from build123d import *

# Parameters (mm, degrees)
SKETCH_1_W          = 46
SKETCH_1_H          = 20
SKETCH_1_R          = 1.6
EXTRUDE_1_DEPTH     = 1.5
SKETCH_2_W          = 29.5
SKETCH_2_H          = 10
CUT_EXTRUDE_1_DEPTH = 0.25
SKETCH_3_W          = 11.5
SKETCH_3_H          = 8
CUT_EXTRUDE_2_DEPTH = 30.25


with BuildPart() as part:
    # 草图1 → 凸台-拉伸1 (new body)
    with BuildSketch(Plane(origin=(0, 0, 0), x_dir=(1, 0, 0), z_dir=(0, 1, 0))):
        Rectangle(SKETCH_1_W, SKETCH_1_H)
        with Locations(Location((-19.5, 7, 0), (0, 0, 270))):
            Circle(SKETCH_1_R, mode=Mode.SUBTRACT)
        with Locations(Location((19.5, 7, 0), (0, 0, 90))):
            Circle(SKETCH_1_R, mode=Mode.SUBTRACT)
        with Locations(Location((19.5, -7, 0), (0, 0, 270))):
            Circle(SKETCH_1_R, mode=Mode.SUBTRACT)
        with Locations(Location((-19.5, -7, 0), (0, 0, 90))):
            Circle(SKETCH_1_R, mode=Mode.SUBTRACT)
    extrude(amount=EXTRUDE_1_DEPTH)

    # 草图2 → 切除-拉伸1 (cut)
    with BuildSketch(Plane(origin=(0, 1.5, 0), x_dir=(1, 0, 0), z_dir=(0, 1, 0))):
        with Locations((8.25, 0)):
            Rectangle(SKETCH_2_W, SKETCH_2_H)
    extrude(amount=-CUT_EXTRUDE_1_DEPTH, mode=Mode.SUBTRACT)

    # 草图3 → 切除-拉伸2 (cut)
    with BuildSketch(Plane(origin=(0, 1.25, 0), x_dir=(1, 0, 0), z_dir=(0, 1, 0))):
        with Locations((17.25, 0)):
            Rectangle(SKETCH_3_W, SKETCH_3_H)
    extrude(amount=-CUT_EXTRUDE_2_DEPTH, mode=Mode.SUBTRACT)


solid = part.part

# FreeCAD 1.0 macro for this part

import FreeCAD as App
import Part
import Sketcher
from FreeCAD import Vector
Q = App.Units.Quantity

doc = App.newDocument("Part")
body = doc.addObject("PartDesign::Body", "Body")

sketch1 = body.newObject("Sketcher::SketchObject", "Sketch")
sketch1.AttachmentSupport = (doc.getObject("XZ_Plane"), [""])
sketch1.MapMode = "FlatFace"
sketch1.addGeometry(Part.LineSegment(Vector(-23, -10, 0), Vector(-23, 10, 0)), False)
sketch1.addGeometry(Part.LineSegment(Vector(-23, 10, 0), Vector(23, 10, 0)), False)
sketch1.addGeometry(Part.LineSegment(Vector(23, 10, 0), Vector(23, -10, 0)), False)
sketch1.addGeometry(Part.LineSegment(Vector(23, -10, 0), Vector(-23, -10, 0)), False)
sketch1.addGeometry(Part.Circle(Vector(-19.5, 7, 0), Vector(0, 0, 1), 1.6), False)
sketch1.addGeometry(Part.Circle(Vector(19.5, 7, 0), Vector(0, 0, 1), 1.6), False)
sketch1.addGeometry(Part.Circle(Vector(-19.5, -7, 0), Vector(0, 0, 1), 1.6), False)
sketch1.addGeometry(Part.Circle(Vector(19.5, -7, 0), Vector(0, 0, 1), 1.6), False)
sketch1.addConstraint(Sketcher.Constraint("Coincident", 0, 2, 1, 1))
sketch1.addConstraint(Sketcher.Constraint("Coincident", 1, 2, 2, 1))
sketch1.addConstraint(Sketcher.Constraint("Coincident", 2, 2, 3, 1))
sketch1.addConstraint(Sketcher.Constraint("Coincident", 3, 2, 0, 1))
sketch1.addConstraint(Sketcher.Constraint("Vertical", 0))
sketch1.addConstraint(Sketcher.Constraint("Horizontal", 1))
sketch1.addConstraint(Sketcher.Constraint("Vertical", 2))
sketch1.addConstraint(Sketcher.Constraint("Horizontal", 3))
sketch1.addConstraint(Sketcher.Constraint("Equal", 4, 5))
sketch1.addConstraint(Sketcher.Constraint("Equal", 5, 6))
sketch1.addConstraint(Sketcher.Constraint("Equal", 6, 7))
sketch1.addConstraint(Sketcher.Constraint("Symmetric", 5, 3, 6, 3, -1, 1))
sketch1.addConstraint(Sketcher.Constraint("Symmetric", 4, 3, 7, 3, -1, 1))
sketch1.addConstraint(Sketcher.Constraint("Symmetric", 0, 2, 2, 2, -1, 1))
sketch1.addConstraint(Sketcher.Constraint("Symmetric", 4, 3, 5, 3, -2))
sketch1.addConstraint(Sketcher.Constraint("Diameter", 4, Q("3.2 mm")))
sketch1.addConstraint(Sketcher.Constraint("DistanceX", 1, 1, 1, 2, Q("46 mm")))
sketch1.addConstraint(Sketcher.Constraint("DistanceY", 0, 1, 0, 2, Q("20 mm")))
sketch1.addConstraint(Sketcher.Constraint("DistanceY", -1, 1, 4, 3, Q("7 mm")))
sketch1.addConstraint(Sketcher.Constraint("DistanceX", 4, 3, 5, 3, Q("39 mm")))
pad1 = body.newObject("PartDesign::Pad", "Pad")
pad1.Profile = sketch1
pad1.Length = 1.5
pad1.Reversed = True

sketch2 = body.newObject("Sketcher::SketchObject", "Sketch001")
sketch2.AttachmentSupport = (doc.getObject("XZ_Plane"), [""])
sketch2.MapMode = "FlatFace"
sketch2.AttachmentOffset = App.Placement(Vector(0, 0, -1.5), App.Rotation())
sketch2.addGeometry(Part.LineSegment(Vector(-6.5, -5, 0), Vector(-6.5, 5, 0)), False)
sketch2.addGeometry(Part.LineSegment(Vector(-6.5, 5, 0), Vector(23, 5, 0)), False)
sketch2.addGeometry(Part.LineSegment(Vector(23, 5, 0), Vector(23, -5, 0)), False)
sketch2.addGeometry(Part.LineSegment(Vector(23, -5, 0), Vector(-6.5, -5, 0)), False)
sketch2.addConstraint(Sketcher.Constraint("Coincident", 0, 2, 1, 1))
sketch2.addConstraint(Sketcher.Constraint("Coincident", 1, 2, 2, 1))
sketch2.addConstraint(Sketcher.Constraint("Coincident", 2, 2, 3, 1))
sketch2.addConstraint(Sketcher.Constraint("Coincident", 3, 2, 0, 1))
sketch2.addConstraint(Sketcher.Constraint("Vertical", 0))
sketch2.addConstraint(Sketcher.Constraint("Horizontal", 1))
sketch2.addConstraint(Sketcher.Constraint("Vertical", 2))
sketch2.addConstraint(Sketcher.Constraint("Horizontal", 3))
sketch2.addConstraint(Sketcher.Constraint("DistanceY", 0, 1, 0, 2, Q("10 mm")))
sketch2.addConstraint(Sketcher.Constraint("DistanceX", 1, 1, 1, 2, Q("29.5 mm")))
sketch2.addConstraint(Sketcher.Constraint("DistanceY", -1, 1, 0, 2, Q("5 mm")))
sketch2.addConstraint(Sketcher.Constraint("DistanceX", -1, 1, 1, 2, Q("23 mm")))
pocket1 = body.newObject("PartDesign::Pocket", "Pocket")
pocket1.Profile = sketch2
pocket1.Length = 0.25
pocket1.Reversed = True

sketch3 = body.newObject("Sketcher::SketchObject", "Sketch002")
sketch3.AttachmentSupport = (doc.getObject("XZ_Plane"), [""])
sketch3.MapMode = "FlatFace"
sketch3.AttachmentOffset = App.Placement(Vector(0, 0, -1.25), App.Rotation())
sketch3.addGeometry(Part.LineSegment(Vector(11.5, -4, 0), Vector(11.5, 4, 0)), False)
sketch3.addGeometry(Part.LineSegment(Vector(11.5, 4, 0), Vector(23, 4, 0)), False)
sketch3.addGeometry(Part.LineSegment(Vector(23, 4, 0), Vector(23, -4, 0)), False)
sketch3.addGeometry(Part.LineSegment(Vector(23, -4, 0), Vector(11.5, -4, 0)), False)
sketch3.addConstraint(Sketcher.Constraint("Coincident", 0, 2, 1, 1))
sketch3.addConstraint(Sketcher.Constraint("Coincident", 1, 2, 2, 1))
sketch3.addConstraint(Sketcher.Constraint("Coincident", 2, 2, 3, 1))
sketch3.addConstraint(Sketcher.Constraint("Coincident", 3, 2, 0, 1))
sketch3.addConstraint(Sketcher.Constraint("Vertical", 0))
sketch3.addConstraint(Sketcher.Constraint("Horizontal", 1))
sketch3.addConstraint(Sketcher.Constraint("Vertical", 2))
sketch3.addConstraint(Sketcher.Constraint("Horizontal", 3))
sketch3.addConstraint(Sketcher.Constraint("DistanceY", 0, 1, 0, 2, Q("8 mm")))
sketch3.addConstraint(Sketcher.Constraint("DistanceX", 1, 1, 1, 2, Q("11.5 mm")))
sketch3.addConstraint(Sketcher.Constraint("DistanceY", -1, 1, 0, 2, Q("4 mm")))
sketch3.addConstraint(Sketcher.Constraint("DistanceX", -1, 1, 1, 2, Q("23 mm")))
pocket2 = body.newObject("PartDesign::Pocket", "Pocket001")
pocket2.Profile = sketch3
pocket2.Length = 30.25
pocket2.Reversed = True

doc.recompute()
